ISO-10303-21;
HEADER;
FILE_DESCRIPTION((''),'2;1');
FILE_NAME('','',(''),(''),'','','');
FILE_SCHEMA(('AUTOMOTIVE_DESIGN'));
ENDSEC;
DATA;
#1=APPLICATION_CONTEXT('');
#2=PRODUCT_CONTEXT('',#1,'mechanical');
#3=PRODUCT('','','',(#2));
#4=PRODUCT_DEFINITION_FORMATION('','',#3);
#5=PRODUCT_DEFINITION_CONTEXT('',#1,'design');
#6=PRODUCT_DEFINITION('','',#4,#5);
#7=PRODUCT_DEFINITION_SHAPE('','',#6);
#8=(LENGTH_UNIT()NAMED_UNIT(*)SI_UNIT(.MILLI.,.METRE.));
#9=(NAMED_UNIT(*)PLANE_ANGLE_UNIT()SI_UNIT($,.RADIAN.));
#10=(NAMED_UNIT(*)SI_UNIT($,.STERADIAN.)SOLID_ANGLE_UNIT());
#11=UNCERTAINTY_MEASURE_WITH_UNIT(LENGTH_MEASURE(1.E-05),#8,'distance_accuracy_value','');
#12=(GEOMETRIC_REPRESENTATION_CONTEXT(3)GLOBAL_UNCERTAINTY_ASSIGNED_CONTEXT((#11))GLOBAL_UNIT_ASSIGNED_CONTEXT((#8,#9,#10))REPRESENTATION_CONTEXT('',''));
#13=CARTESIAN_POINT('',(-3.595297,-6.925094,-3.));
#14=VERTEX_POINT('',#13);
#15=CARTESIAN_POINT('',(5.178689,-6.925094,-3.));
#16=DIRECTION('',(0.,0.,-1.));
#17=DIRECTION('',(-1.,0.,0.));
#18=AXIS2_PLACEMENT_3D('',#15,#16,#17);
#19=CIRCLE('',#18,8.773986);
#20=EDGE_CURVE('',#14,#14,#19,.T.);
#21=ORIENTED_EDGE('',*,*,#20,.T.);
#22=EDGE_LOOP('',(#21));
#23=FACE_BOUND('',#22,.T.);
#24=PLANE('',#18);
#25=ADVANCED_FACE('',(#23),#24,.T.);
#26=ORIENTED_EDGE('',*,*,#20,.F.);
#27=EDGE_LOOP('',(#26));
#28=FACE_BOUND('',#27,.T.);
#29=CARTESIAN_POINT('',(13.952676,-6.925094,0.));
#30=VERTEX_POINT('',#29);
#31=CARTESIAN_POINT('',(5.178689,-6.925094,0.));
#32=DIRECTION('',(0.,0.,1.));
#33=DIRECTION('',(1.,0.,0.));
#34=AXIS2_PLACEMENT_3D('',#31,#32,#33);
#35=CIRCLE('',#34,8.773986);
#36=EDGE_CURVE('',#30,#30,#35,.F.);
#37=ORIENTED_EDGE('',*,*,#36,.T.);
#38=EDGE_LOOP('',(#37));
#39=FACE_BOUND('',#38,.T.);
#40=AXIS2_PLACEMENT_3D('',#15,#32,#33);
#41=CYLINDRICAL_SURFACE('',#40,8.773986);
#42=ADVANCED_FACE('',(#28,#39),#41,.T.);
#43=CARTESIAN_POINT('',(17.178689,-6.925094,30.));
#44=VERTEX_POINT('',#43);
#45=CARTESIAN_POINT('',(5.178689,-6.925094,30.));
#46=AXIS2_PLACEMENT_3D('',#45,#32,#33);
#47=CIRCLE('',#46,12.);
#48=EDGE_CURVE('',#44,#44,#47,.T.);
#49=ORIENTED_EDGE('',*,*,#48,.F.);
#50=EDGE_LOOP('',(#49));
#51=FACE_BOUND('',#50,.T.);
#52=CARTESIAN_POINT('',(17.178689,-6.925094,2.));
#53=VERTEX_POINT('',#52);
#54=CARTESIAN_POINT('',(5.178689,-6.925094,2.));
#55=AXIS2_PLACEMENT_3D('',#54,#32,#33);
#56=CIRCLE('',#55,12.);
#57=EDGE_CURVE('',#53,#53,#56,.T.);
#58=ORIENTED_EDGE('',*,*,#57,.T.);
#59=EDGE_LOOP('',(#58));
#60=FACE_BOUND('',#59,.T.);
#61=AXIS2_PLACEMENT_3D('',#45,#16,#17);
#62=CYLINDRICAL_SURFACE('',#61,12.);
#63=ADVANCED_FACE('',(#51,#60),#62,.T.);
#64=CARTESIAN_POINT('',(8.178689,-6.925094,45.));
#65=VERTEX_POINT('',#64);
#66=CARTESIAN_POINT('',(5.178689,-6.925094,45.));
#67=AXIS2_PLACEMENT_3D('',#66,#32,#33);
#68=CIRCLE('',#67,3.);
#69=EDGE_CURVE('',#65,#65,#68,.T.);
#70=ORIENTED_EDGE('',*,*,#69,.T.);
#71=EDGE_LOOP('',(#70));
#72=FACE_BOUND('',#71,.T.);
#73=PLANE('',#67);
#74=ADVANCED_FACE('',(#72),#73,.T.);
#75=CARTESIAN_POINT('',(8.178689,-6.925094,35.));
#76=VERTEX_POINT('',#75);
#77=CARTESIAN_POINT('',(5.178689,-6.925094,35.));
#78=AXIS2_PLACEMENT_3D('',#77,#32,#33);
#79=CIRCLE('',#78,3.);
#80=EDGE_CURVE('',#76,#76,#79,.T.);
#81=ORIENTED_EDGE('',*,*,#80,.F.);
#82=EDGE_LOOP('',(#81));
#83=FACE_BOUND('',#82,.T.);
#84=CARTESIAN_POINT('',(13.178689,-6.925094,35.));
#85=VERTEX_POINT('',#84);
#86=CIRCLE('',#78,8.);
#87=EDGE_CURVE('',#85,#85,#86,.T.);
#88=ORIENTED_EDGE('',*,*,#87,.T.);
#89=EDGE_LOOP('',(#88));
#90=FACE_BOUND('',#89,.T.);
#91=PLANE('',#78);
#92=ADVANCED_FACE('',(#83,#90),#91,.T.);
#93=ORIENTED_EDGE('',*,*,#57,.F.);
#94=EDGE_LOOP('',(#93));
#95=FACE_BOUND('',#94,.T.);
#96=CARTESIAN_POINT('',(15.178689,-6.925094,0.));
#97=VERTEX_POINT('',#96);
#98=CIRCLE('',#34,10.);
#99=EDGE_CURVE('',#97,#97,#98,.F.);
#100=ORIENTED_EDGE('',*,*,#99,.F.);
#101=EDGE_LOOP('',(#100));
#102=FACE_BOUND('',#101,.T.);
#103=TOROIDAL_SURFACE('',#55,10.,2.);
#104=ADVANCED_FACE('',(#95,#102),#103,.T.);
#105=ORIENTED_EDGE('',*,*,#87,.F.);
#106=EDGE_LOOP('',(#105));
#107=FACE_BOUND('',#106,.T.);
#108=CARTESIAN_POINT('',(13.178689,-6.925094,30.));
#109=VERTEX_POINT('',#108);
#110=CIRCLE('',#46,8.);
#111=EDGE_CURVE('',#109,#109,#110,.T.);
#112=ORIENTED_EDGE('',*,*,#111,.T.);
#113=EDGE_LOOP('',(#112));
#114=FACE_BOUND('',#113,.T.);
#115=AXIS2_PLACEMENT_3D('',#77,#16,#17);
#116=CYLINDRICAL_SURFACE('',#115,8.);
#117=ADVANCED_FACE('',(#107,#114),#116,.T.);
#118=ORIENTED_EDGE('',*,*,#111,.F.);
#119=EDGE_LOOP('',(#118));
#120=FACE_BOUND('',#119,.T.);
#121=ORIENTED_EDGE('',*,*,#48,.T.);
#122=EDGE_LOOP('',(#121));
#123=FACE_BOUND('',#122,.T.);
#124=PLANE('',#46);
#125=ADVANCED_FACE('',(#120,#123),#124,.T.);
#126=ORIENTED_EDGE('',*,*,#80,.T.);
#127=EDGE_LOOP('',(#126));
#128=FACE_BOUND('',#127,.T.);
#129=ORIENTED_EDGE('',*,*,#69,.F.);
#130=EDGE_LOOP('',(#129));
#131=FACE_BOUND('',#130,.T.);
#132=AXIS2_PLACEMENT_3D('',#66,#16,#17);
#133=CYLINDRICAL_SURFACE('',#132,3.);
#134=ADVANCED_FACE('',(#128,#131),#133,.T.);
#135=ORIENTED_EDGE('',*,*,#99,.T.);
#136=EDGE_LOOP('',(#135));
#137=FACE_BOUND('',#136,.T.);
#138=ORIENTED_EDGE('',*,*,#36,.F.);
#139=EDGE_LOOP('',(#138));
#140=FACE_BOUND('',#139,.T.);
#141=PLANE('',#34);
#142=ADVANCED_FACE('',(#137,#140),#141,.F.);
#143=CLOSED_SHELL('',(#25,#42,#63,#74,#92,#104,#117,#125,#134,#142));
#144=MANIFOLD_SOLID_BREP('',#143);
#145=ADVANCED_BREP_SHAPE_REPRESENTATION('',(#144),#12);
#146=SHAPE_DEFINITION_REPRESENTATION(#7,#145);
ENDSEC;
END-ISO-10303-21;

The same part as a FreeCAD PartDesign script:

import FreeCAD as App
import Part
import Sketcher
Q = App.Units.Quantity


def edges_at(feature, points):
    """Names of the edges that pass closest to the given points."""
    edges = feature.Shape.Edges
    near = lambda p: min(range(len(edges)), key=lambda i: edges[i].distToShape(Part.Vertex(*p))[0])
    return sorted({f"Edge{near(p) + 1}" for p in points})

doc = App.newDocument("Part")
body = doc.addObject("PartDesign::Body", "Body")

# Sketch on XY plane
sketch1 = doc.addObject("Sketcher::SketchObject", "Sketch")
body.addObject(sketch1)
sketch1.AttachmentSupport = (doc.XY_Plane, [""])
sketch1.MapMode = "FlatFace"
sketch1.addGeometry(Part.Circle(App.Vector(5.178689, -6.925094, 0), App.Vector(0, 0, 1), 12), False)
sketch1.addConstraint([
    Sketcher.Constraint("Diameter", 0, Q("24 mm")),
    Sketcher.Constraint("DistanceX", -1, 1, 0, 3, Q("5.178689 mm")),
    Sketcher.Constraint("DistanceY", 0, 3, -1, 1, Q("6.925094 mm")),
])
pad1 = doc.addObject("PartDesign::Pad", "Pad")
body.addObject(pad1)
pad1.Profile = sketch1
pad1.Length = 30

# Sketch on XY plane
sketch2 = doc.addObject("Sketcher::SketchObject", "Sketch001")
body.addObject(sketch2)
sketch2.AttachmentSupport = (doc.XY_Plane, [""])
sketch2.MapMode = "FlatFace"
sketch2.AttachmentOffset = App.Placement(App.Vector(0, 0, 30), App.Rotation())
sketch2.addGeometry(Part.Circle(App.Vector(5.178689, -6.925094, 0), App.Vector(0, 0, 1), 8), False)
sketch2.addConstraint([
    Sketcher.Constraint("Diameter", 0, Q("16 mm")),
    Sketcher.Constraint("DistanceX", -1, 1, 0, 3, Q("5.178689 mm")),
    Sketcher.Constraint("DistanceY", 0, 3, -1, 1, Q("6.925094 mm")),
])
pad2 = doc.addObject("PartDesign::Pad", "Pad001")
body.addObject(pad2)
pad2.Profile = sketch2
pad2.Length = 5

# Sketch on XY plane
sketch3 = doc.addObject("Sketcher::SketchObject", "Sketch002")
body.addObject(sketch3)
sketch3.AttachmentSupport = (doc.XY_Plane, [""])
sketch3.MapMode = "FlatFace"
sketch3.AttachmentOffset = App.Placement(App.Vector(0, 0, 35), App.Rotation())
sketch3.addGeometry([
    Part.Circle(App.Vector(5.178689, 2.99561, 0), App.Vector(0, 0, 1), 1.579296),
    Part.Circle(App.Vector(15.099394, -6.925094, 0), App.Vector(0, 0, 1), 1.579296),
    Part.Circle(App.Vector(5.178689, -16.845799, 0), App.Vector(0, 0, 1), 1.579296),
    Part.Circle(App.Vector(-4.742015, -6.925094, 0), App.Vector(0, 0, 1), 1.579296),
], False)
sketch3.addConstraint([
    Sketcher.Constraint("Equal", 0, 1),
    Sketcher.Constraint("Equal", 1, 2),
    Sketcher.Constraint("Equal", 2, 3),
    Sketcher.Constraint("Horizontal", 1, 3, 3, 3),
    Sketcher.Constraint("Vertical", 0, 3, 2, 3),
    Sketcher.Constraint("Diameter", 0, Q("3.158591 mm")),
    Sketcher.Constraint("DistanceY", 2, 3, -1, 1, Q("16.845799 mm")),
    Sketcher.Constraint("DistanceX", -1, 1, 0, 3, Q("5.178689 mm")),
    Sketcher.Constraint("DistanceY", -1, 1, 0, 3, Q("2.99561 mm")),
    Sketcher.Constraint("DistanceX", 3, 3, 1, 3, Q("19.841409 mm")),
    Sketcher.Constraint("DistanceX", -1, 1, 1, 3, Q("15.099394 mm")),
    Sketcher.Constraint("DistanceY", 1, 3, -1, 1, Q("6.925094 mm")),
])
pocket1 = doc.addObject("PartDesign::Pocket", "Pocket")
body.addObject(pocket1)
pocket1.Profile = sketch3
pocket1.Length = 3

# Sketch on XY plane
sketch4 = doc.addObject("Sketcher::SketchObject", "Sketch003")
body.addObject(sketch4)
sketch4.AttachmentSupport = (doc.XY_Plane, [""])
sketch4.MapMode = "FlatFace"
sketch4.AttachmentOffset = App.Placement(App.Vector(0, 0, 35), App.Rotation())
sketch4.addGeometry(Part.Circle(App.Vector(5.178689, -6.925094, 0), App.Vector(0, 0, 1), 3), False)
sketch4.addConstraint([
    Sketcher.Constraint("Diameter", 0, Q("6 mm")),
    Sketcher.Constraint("DistanceX", -1, 1, 0, 3, Q("5.178689 mm")),
    Sketcher.Constraint("DistanceY", 0, 3, -1, 1, Q("6.925094 mm")),
])
pad3 = doc.addObject("PartDesign::Pad", "Pad002")
body.addObject(pad3)
pad3.Profile = sketch4
pad3.Length = 10

# Sketch on XY plane
sketch5 = doc.addObject("Sketcher::SketchObject", "Sketch004")
body.addObject(sketch5)
sketch5.AttachmentSupport = (doc.XY_Plane, [""])
sketch5.MapMode = "FlatFace"
sketch5.addGeometry(Part.Circle(App.Vector(5.178689, -6.925094, 0), App.Vector(0, 0, 1), 8.773986), False)
sketch5.addConstraint([
    Sketcher.Constraint("Diameter", 0, Q("17.547973 mm")),
    Sketcher.Constraint("DistanceX", -1, 1, 0, 3, Q("5.178689 mm")),
    Sketcher.Constraint("DistanceY", 0, 3, -1, 1, Q("6.925094 mm")),
])
pad4 = doc.addObject("PartDesign::Pad", "Pad003")
body.addObject(pad4)
pad4.Profile = sketch5
pad4.Length = 3
pad4.Reversed = True
doc.recompute()

fillet = doc.addObject("PartDesign::Fillet", "Fillet")
body.addObject(fillet)
fillet.Base = (pad4, edges_at(pad4, [(-6.821, -6.925, 0)]))
fillet.Radius = 2

doc.recompute()
